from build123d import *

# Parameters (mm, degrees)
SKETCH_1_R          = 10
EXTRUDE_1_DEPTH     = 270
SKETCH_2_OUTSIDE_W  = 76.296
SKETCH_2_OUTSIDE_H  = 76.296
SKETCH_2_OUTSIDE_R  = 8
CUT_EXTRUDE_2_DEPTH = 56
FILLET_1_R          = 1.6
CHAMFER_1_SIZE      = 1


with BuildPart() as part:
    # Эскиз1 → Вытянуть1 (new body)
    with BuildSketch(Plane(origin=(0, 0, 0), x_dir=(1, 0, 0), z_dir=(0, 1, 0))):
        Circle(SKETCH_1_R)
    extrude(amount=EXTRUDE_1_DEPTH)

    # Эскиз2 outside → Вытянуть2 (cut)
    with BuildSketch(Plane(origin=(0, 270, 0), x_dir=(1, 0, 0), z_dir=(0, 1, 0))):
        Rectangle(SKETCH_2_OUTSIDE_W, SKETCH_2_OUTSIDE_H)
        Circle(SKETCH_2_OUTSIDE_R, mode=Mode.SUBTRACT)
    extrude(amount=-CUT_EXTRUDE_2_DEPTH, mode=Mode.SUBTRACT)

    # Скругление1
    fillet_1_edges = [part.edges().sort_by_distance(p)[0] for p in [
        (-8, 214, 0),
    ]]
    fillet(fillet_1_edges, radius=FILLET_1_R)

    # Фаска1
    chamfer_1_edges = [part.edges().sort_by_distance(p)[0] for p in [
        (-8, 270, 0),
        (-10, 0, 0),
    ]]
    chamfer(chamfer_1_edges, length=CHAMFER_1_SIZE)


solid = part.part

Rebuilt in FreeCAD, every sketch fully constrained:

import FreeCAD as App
import Part
import Sketcher

V = App.Vector


def edges_at(feature, points):
    """Names of the edges that pass closest to the given points."""
    edges = feature.Shape.Edges
    near = lambda p: min(range(len(edges)), key=lambda i: edges[i].distToShape(Part.Vertex(*p))[0])
    return sorted({f"Edge{near(p) + 1}" for p in points})


def add_polygon(sketch, points):
    """Adds a closed chain of lines whose ends are joined by coincident constraints."""
    first, n = sketch.GeometryCount, len(points)
    for a, b in zip(points, points[1:] + points[:1]):
        sketch.addGeometry(Part.LineSegment(App.Vector(*a, 0), App.Vector(*b, 0)), False)
    for i in range(n):
        sketch.addConstraint(Sketcher.Constraint("Coincident", first + i, 2, first + (i + 1) % n, 1))

doc = App.newDocument("Part")
body = doc.addObject("PartDesign::Body", "Body")

sketch1 = doc.addObject("Sketcher::SketchObject", "Sketch")
body.addObject(sketch1)
sketch1.AttachmentSupport = (doc.XZ_Plane, [""])
sketch1.MapMode = "FlatFace"
sketch1.addGeometry(Part.Circle(V(0, 0, 0), V(0, 0, 1), 10), False)
sketch1.addConstraint([
    Sketcher.Constraint("Coincident", 0, 3, -1, 1),
    Sketcher.Constraint("Diameter", 0, 20.0),
])
pad1 = doc.addObject("PartDesign::Pad", "Pad")
body.addObject(pad1)
pad1.Profile = sketch1
pad1.Length = 270
pad1.Reversed = True

sketch2 = doc.addObject("Sketcher::SketchObject", "Sketch001")
body.addObject(sketch2)
sketch2.AttachmentSupport = (doc.XZ_Plane, [""])
sketch2.MapMode = "FlatFace"
sketch2.AttachmentOffset = App.Placement(V(0, 0, -270), App.Rotation())
add_polygon(sketch2, [(-38.148, -38.148), (-38.148, 38.148), (38.148, 38.148), (38.148, -38.148)])
sketch2.addGeometry(Part.Circle(V(0, 0, 0), V(0, 0, 1), 8), False)
sketch2.addConstraint([
    Sketcher.Constraint("Vertical", 0),
    Sketcher.Constraint("Horizontal", 1),
    Sketcher.Constraint("Vertical", 2),
    Sketcher.Constraint("Horizontal", 3),
    Sketcher.Constraint("Coincident", 4, 3, -1, 1),
    Sketcher.Constraint("Symmetric", 0, 2, 2, 2, -1, 1),
    Sketcher.Constraint("Equal", 3, 0),
    Sketcher.Constraint("Diameter", 4, 16.0),
    Sketcher.Constraint("DistanceX", 1, 1, 1, 2, 76.296),
])
pocket1 = doc.addObject("PartDesign::Pocket", "Pocket")
body.addObject(pocket1)
pocket1.Profile = sketch2
pocket1.Length = 56
pocket1.Reversed = True
doc.recompute()

fillet = doc.addObject("PartDesign::Fillet", "Fillet")
body.addObject(fillet)
fillet.Base = (pocket1, edges_at(pocket1, [(-8, 214, 0)]))
fillet.Radius = 1.6
doc.recompute()

chamfer = doc.addObject("PartDesign::Chamfer", "Chamfer")
body.addObject(chamfer)
chamfer.Base = (fillet, edges_at(fillet, [(-8, 270, 0), (-10, 0, 0)]))
chamfer.Size = 1

doc.recompute()
